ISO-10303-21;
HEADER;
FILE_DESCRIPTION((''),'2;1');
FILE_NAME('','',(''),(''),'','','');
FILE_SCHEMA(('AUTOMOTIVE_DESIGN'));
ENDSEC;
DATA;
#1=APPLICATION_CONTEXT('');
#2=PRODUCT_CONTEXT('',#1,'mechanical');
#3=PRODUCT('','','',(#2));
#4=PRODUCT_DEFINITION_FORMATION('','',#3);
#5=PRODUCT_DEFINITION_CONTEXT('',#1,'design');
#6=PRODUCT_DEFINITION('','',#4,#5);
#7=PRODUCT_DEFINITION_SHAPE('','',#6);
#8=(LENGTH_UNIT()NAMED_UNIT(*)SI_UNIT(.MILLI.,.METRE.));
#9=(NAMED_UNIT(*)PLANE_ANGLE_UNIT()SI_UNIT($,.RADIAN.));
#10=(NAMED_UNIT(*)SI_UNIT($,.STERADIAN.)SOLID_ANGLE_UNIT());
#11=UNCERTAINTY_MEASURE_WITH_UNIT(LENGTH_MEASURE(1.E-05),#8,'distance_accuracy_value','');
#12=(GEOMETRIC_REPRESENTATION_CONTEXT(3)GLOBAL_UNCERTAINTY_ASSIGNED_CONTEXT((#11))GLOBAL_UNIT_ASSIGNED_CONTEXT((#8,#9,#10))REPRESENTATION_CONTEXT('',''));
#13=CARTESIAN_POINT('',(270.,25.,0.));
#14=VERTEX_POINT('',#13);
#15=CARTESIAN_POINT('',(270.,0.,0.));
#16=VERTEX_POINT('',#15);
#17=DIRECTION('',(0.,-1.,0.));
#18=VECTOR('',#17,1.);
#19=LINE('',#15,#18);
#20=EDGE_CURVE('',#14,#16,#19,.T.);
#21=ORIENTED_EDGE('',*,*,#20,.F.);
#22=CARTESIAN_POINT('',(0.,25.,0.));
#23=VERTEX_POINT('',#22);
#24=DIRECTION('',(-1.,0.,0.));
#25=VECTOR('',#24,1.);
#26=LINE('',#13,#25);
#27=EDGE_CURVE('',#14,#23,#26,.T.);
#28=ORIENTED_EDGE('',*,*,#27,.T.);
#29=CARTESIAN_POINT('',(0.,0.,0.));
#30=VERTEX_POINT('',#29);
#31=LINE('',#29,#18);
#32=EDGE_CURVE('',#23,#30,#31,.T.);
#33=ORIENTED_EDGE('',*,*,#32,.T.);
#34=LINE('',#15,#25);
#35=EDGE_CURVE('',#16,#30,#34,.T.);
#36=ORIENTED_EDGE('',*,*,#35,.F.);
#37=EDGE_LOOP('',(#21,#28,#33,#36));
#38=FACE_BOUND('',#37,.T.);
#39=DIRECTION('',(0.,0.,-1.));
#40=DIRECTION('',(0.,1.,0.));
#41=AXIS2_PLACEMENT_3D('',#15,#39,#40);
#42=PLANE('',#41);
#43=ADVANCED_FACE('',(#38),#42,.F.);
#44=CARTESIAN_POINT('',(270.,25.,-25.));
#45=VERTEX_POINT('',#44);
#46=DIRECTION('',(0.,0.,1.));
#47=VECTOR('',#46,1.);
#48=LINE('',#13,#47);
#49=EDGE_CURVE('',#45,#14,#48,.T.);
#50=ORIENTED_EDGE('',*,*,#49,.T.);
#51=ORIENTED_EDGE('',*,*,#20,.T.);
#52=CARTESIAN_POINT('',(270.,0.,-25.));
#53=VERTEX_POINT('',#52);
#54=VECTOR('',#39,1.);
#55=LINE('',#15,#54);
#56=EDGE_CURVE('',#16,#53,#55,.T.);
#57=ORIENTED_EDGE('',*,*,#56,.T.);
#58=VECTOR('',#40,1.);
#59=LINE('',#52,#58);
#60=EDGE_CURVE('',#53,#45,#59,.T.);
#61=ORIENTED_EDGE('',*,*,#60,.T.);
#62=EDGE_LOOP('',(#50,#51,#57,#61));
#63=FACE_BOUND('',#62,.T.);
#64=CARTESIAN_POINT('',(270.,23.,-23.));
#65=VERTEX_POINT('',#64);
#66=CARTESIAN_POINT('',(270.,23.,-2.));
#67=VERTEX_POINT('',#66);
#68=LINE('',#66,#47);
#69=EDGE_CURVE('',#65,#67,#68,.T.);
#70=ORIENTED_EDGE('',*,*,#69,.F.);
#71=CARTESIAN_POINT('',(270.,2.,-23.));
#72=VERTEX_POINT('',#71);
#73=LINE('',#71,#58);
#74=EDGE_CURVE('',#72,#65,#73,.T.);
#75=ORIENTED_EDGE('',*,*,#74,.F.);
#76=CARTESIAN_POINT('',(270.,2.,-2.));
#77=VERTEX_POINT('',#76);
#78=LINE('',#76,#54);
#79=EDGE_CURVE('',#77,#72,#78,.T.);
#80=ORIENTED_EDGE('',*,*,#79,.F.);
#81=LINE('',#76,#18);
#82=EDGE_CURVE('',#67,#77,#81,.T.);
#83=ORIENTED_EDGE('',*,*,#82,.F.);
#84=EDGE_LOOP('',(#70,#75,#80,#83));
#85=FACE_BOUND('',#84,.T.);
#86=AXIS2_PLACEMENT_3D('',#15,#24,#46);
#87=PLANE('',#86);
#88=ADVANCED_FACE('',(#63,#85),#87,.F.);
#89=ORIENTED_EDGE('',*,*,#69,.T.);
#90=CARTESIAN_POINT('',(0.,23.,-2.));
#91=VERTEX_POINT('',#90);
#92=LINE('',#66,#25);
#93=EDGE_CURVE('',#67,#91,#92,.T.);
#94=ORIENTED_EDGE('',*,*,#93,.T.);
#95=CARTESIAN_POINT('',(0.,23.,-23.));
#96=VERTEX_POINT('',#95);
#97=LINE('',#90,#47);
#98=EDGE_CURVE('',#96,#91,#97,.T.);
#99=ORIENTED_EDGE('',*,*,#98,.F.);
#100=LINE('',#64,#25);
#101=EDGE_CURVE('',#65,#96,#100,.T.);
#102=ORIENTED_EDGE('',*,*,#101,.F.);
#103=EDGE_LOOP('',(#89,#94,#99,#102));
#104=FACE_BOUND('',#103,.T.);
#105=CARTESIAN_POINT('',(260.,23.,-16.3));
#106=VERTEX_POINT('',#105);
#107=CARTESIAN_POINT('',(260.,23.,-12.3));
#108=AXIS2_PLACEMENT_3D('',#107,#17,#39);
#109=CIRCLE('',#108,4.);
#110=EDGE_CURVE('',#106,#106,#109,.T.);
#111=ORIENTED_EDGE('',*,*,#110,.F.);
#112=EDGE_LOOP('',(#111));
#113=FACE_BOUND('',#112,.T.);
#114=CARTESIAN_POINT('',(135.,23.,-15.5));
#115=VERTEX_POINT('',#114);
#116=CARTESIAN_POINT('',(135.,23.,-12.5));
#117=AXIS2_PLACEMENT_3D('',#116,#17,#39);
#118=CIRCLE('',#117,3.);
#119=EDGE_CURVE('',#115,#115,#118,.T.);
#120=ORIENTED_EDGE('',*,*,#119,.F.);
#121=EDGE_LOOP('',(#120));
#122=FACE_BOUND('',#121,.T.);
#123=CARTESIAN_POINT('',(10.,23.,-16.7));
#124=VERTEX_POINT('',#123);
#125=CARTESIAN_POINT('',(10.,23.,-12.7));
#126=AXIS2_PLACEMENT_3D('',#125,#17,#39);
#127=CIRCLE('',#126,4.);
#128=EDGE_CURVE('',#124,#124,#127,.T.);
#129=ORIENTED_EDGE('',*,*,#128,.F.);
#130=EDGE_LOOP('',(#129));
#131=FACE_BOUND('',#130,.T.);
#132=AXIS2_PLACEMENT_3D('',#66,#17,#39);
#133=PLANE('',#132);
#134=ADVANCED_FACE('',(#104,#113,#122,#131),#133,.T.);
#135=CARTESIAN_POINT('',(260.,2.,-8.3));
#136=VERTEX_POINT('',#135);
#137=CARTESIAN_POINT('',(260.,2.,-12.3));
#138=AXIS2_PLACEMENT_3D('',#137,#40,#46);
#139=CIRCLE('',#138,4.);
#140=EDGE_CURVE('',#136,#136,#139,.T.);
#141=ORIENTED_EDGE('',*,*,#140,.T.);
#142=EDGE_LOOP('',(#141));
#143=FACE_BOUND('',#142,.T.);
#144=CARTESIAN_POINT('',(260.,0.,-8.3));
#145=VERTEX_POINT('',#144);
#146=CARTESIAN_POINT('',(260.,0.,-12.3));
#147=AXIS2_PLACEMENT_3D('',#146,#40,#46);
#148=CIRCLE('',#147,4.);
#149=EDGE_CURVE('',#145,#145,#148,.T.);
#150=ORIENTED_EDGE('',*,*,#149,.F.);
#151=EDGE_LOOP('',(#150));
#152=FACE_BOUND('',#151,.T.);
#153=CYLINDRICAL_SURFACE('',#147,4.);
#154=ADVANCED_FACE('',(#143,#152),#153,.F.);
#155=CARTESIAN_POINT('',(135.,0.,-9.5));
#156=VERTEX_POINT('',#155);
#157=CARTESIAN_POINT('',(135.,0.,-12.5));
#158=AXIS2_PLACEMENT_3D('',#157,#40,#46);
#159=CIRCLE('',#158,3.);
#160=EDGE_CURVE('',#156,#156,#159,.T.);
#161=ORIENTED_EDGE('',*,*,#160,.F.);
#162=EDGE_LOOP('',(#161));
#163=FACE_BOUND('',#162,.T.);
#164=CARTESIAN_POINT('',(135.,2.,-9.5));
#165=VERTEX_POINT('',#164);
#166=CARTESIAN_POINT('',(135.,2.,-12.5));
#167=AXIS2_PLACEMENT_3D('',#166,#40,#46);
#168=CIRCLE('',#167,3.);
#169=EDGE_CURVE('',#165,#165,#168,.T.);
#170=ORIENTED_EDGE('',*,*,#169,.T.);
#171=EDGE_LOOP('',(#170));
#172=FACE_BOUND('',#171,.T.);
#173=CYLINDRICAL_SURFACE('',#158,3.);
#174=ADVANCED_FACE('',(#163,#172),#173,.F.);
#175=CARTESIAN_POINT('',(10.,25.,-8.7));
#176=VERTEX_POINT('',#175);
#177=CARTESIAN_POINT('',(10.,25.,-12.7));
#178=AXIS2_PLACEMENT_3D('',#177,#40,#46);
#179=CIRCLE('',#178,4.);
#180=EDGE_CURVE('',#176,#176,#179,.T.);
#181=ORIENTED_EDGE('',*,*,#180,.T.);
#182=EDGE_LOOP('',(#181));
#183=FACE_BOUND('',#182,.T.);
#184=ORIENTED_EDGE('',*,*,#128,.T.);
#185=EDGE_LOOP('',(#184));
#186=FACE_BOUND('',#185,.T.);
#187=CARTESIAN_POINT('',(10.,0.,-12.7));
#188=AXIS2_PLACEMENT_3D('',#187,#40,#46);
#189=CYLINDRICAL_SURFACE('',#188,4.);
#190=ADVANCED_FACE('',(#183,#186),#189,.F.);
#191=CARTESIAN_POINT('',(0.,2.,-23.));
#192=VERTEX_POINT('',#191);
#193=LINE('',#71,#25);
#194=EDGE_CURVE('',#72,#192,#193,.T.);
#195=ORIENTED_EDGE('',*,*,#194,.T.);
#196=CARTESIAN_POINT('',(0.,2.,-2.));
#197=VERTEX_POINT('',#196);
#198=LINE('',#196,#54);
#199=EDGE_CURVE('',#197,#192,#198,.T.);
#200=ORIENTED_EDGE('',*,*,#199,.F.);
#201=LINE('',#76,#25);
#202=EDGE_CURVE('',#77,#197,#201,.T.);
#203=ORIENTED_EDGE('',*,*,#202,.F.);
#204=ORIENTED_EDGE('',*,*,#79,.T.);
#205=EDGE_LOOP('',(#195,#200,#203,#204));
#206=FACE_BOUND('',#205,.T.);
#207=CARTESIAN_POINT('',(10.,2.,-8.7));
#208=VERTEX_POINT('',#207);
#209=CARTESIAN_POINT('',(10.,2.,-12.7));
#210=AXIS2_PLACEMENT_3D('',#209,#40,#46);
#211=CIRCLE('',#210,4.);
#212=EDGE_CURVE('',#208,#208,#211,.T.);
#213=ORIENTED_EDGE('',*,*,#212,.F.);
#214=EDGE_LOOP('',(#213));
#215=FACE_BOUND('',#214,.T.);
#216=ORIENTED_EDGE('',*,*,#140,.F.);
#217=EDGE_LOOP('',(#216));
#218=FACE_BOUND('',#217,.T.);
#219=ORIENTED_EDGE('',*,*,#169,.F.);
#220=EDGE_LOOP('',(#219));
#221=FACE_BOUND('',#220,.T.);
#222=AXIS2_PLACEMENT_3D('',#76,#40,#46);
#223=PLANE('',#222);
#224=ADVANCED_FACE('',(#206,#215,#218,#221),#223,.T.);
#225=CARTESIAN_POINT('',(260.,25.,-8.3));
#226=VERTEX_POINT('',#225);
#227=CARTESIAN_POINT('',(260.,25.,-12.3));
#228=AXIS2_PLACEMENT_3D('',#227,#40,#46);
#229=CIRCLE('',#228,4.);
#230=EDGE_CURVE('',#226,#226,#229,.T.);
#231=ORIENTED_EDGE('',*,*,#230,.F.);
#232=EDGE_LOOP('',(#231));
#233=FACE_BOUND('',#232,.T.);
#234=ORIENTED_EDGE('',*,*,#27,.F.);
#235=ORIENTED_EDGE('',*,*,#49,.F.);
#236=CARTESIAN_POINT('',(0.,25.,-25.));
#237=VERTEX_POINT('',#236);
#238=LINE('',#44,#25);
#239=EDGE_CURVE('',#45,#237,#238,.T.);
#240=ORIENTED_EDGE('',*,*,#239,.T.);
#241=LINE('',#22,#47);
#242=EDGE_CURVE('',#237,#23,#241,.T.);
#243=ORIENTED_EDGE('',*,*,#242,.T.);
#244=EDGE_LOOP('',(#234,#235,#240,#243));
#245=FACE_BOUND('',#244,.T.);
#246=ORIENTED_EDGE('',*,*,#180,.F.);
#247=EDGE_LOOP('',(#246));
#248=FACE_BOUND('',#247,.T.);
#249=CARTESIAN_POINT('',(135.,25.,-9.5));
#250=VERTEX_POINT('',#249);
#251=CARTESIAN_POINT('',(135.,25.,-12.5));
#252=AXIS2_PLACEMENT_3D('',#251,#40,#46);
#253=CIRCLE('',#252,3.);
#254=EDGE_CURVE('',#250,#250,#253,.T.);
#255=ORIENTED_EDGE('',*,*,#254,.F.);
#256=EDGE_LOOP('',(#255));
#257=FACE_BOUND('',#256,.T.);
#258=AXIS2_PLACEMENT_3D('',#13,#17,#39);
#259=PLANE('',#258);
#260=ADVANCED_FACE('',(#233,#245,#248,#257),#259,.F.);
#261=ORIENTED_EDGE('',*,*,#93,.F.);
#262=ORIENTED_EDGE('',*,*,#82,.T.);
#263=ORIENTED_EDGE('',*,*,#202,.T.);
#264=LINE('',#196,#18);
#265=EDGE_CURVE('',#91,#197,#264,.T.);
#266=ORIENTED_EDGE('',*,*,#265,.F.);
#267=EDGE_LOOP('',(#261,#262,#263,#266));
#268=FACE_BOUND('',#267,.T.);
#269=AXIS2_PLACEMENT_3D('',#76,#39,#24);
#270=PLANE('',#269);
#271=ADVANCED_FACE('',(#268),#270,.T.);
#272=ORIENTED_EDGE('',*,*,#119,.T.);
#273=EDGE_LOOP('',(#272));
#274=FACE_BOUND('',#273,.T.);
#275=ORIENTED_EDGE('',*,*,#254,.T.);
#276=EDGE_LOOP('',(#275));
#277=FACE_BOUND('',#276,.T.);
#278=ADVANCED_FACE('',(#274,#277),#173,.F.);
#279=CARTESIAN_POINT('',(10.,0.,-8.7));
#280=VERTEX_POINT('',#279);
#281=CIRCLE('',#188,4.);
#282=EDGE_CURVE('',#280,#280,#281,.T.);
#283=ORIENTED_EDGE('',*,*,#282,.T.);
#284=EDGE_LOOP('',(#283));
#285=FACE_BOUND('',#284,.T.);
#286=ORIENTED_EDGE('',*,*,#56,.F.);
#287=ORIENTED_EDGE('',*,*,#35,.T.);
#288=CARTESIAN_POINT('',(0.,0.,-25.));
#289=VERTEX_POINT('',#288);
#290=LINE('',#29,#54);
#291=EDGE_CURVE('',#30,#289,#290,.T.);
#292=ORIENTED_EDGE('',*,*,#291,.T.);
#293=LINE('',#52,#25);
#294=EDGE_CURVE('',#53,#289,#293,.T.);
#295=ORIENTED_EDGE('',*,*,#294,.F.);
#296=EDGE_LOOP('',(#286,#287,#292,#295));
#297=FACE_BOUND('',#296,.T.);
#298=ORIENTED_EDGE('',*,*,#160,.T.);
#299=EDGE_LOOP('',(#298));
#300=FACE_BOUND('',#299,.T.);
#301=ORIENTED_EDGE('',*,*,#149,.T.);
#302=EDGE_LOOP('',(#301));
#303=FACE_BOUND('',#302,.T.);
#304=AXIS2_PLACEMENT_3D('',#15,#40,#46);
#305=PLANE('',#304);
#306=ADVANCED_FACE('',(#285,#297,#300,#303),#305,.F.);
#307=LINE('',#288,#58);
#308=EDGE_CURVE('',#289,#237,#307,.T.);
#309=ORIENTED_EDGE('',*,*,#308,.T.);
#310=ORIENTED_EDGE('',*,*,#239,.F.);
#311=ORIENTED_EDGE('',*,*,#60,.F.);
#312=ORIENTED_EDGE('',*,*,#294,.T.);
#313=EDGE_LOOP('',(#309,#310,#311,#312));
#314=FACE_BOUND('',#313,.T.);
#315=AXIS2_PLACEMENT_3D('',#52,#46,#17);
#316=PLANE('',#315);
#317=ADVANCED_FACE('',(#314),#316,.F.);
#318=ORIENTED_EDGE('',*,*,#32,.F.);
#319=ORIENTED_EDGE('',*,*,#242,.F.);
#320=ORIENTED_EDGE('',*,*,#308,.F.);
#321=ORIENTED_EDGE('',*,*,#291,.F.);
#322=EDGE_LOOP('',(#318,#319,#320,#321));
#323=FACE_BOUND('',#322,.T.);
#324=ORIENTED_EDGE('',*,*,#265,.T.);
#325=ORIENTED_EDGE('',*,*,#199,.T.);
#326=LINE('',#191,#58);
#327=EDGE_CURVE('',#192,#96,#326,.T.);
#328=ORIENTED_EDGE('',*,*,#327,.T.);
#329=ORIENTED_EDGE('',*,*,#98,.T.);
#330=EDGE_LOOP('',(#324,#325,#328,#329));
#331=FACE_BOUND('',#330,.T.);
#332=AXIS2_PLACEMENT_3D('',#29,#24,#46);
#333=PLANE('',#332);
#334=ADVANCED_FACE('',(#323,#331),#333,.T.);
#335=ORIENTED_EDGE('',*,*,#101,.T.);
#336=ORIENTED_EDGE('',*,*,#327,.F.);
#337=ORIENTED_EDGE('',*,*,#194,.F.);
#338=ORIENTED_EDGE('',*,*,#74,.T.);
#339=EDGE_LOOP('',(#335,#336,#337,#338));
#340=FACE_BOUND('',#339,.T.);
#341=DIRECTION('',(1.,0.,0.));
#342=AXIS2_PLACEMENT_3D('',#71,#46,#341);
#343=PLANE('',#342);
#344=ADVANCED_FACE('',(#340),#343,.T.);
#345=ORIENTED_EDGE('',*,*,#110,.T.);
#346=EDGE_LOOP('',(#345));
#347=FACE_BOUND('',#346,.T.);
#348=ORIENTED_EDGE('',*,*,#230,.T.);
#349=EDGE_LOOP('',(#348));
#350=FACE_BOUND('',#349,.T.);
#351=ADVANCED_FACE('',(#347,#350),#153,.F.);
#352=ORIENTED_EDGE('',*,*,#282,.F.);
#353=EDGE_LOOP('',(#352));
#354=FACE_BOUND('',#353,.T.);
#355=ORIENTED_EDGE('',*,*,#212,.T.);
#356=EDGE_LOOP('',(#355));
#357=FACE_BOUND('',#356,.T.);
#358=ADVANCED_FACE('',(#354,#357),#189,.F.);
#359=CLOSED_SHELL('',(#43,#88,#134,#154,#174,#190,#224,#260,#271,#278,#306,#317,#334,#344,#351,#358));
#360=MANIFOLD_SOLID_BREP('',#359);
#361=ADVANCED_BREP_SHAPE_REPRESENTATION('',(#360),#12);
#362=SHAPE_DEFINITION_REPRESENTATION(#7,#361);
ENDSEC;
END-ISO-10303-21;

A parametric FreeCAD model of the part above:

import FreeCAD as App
import Part
import Sketcher
from FreeCAD import Vector


def add_polygon(sketch, points):
    """Adds a closed chain of lines whose ends are joined by coincident constraints."""
    first, n = sketch.GeometryCount, len(points)
    for a, b in zip(points, points[1:] + points[:1]):
        sketch.addGeometry(Part.LineSegment(App.Vector(*a, 0), App.Vector(*b, 0)), False)
    for i in range(n):
        sketch.addConstraint(Sketcher.Constraint("Coincident", first + i, 2, first + (i + 1) % n, 1))

doc = App.newDocument("Part")
body = doc.addObject("PartDesign::Body", "Body")

# Sketch on YZ plane
sketch1 = body.newObject("Sketcher::SketchObject", "Sketch")
sketch1.AttachmentSupport = (doc.getObject("YZ_Plane"), [""])
sketch1.MapMode = "FlatFace"
add_polygon(sketch1, [(25, 0), (0, 0), (0, -25), (25, -25)])  # lines 0-3
add_polygon(sketch1, [(2, -23), (2, -2), (23, -2), (23, -23)])  # lines 4-7
sketch1.addConstraint([
    Sketcher.Constraint("Horizontal", 0),
    Sketcher.Constraint("Vertical", 1),
    Sketcher.Constraint("Horizontal", 2),
    Sketcher.Constraint("Vertical", 3),
    Sketcher.Constraint("Vertical", 4),
    Sketcher.Constraint("Horizontal", 5),
    Sketcher.Constraint("Vertical", 6),
    Sketcher.Constraint("Horizontal", 7),
    Sketcher.Constraint("Coincident", 0, 2, -1, 1),
    Sketcher.Constraint("Equal", 2, 1),
    Sketcher.Constraint("Equal", 7, 4),
    Sketcher.Constraint("DistanceX", 0, 2, 0, 1, 25.0),
    Sketcher.Constraint("DistanceX", 5, 1, 5, 2, 21.0),
    Sketcher.Constraint("DistanceX", -1, 1, 4, 2, 2.0),
    Sketcher.Constraint("DistanceY", 4, 2, -1, 1, 2.0),
])
pad1 = body.newObject("PartDesign::Pad", "Pad")
pad1.Profile = sketch1
pad1.Length = 270

# Sketch on XZ plane
sketch2 = body.newObject("Sketcher::SketchObject", "Sketch001")
sketch2.AttachmentSupport = (doc.getObject("XZ_Plane"), [""])
sketch2.MapMode = "FlatFace"
sketch2.AttachmentOffset = App.Placement(Vector(0, 0, -25), App.Rotation())
sketch2.addGeometry(Part.Circle(Vector(135, -12.5, 0), Vector(0, 0, 1), 3), False)
sketch2.addConstraint([
    Sketcher.Constraint("Diameter", 0, 6.0),
    Sketcher.Constraint("DistanceX", -1, 1, 0, 3, 135.0),
    Sketcher.Constraint("DistanceY", 0, 3, -1, 1, 12.5),
])
pocket1 = body.newObject("PartDesign::Pocket", "Pocket")
pocket1.Profile = sketch2
pocket1.Type = "ThroughAll"
pocket1.Reversed = True

# Sketch on XZ plane
sketch3 = body.newObject("Sketcher::SketchObject", "Sketch002")
sketch3.AttachmentSupport = (doc.getObject("XZ_Plane"), [""])
sketch3.MapMode = "FlatFace"
sketch3.AttachmentOffset = App.Placement(Vector(0, 0, -25), App.Rotation())
sketch3.addGeometry([
    Part.Circle(Vector(10, -12.7, 0), Vector(0, 0, 1), 4),
    Part.Circle(Vector(260, -12.3, 0), Vector(0, 0, 1), 4),
], False)
sketch3.addConstraint([
    Sketcher.Constraint("Equal", 0, 1),
    Sketcher.Constraint("Diameter", 0, 8.0),
    Sketcher.Constraint("DistanceX", -1, 1, 0, 3, 10.0),
    Sketcher.Constraint("DistanceX", -1, 1, 1, 3, 260.0),
    Sketcher.Constraint("DistanceY", 0, 3, -1, 1, 12.7),
    Sketcher.Constraint("DistanceY", 1, 3, -1, 1, 12.3),
])
pocket2 = body.newObject("PartDesign::Pocket", "Pocket001")
pocket2.Profile = sketch3
pocket2.Type = "ThroughAll"
pocket2.Reversed = True

doc.recompute()
